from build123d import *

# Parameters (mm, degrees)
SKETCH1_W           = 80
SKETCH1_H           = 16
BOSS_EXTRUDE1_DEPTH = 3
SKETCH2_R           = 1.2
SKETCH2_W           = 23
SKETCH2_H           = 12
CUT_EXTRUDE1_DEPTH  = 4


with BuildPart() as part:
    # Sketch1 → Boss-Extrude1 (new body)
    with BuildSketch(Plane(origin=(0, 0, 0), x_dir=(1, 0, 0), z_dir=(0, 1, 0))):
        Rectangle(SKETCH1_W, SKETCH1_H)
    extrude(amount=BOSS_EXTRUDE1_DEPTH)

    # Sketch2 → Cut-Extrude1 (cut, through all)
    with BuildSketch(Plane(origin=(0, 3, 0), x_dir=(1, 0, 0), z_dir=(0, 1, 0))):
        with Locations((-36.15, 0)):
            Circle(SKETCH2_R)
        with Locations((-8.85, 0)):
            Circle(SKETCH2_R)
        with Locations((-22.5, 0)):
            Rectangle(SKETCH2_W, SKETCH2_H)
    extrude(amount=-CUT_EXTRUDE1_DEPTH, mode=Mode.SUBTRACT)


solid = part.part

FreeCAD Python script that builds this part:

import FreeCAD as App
import Part
import Sketcher

V = App.Vector


def add_polygon(sketch, points):
    """Adds a closed chain of lines whose ends are joined by coincident constraints."""
    first, n = sketch.GeometryCount, len(points)
    for a, b in zip(points, points[1:] + points[:1]):
        sketch.addGeometry(Part.LineSegment(App.Vector(*a, 0), App.Vector(*b, 0)), False)
    for i in range(n):
        sketch.addConstraint(Sketcher.Constraint("Coincident", first + i, 2, first + (i + 1) % n, 1))

doc = App.newDocument("Part")
params = doc.addObject("Spreadsheet::Sheet", "Params")
for row, (alias, value) in enumerate([
    ("sketch1_width", "80 mm"),
    ("sketch1_height", "16 mm"),
    ("pad1_length", "3 mm"),
    ("sketch2_diameter", "2.4 mm"),
    ("sketch2_width", "23 mm"),
    ("sketch2_height", "12 mm"),
], start=1):
    params.set(f"A{row}", alias)
    params.set(f"B{row}", "=" + value)
    params.setAlias(f"B{row}", alias)

body = doc.addObject("PartDesign::Body", "Body")

sketch1 = body.newObject("Sketcher::SketchObject", "Sketch")
sketch1.AttachmentSupport = (doc.getObject("XZ_Plane"), [""])
sketch1.MapMode = "FlatFace"
add_polygon(sketch1, [(-40, -8), (-40, 8), (40, 8), (40, -8)])
sketch1.addConstraint([
    Sketcher.Constraint("Vertical", 0),
    Sketcher.Constraint("Horizontal", 1),
    Sketcher.Constraint("Vertical", 2),
    Sketcher.Constraint("Horizontal", 3),
    Sketcher.Constraint("Symmetric", 0, 2, 2, 2, -1, 1),
    Sketcher.Constraint("DistanceX", 1, 1, 1, 2, 80.0),
    Sketcher.Constraint("DistanceY", 0, 1, 0, 2, 16.0),
])
sketch1.setExpression("Constraints[9]", "Params.sketch1_width")
sketch1.setExpression("Constraints[10]", "Params.sketch1_height")
pad1 = body.newObject("PartDesign::Pad", "Pad")
pad1.Profile = sketch1
pad1.setExpression("Length", "Params.pad1_length")
pad1.Reversed = True

sketch2 = body.newObject("Sketcher::SketchObject", "Sketch001")
sketch2.AttachmentSupport = (doc.getObject("XZ_Plane"), [""])
sketch2.MapMode = "FlatFace"
sketch2.AttachmentOffset = App.Placement(V(0, 0, -3), App.Rotation())
sketch2.addGeometry(Part.Circle(V(-36.1, 0, 0), V(0, 0, 1), 1.2), False)
sketch2.addGeometry(Part.Circle(V(-8.8, 0, 0), V(0, 0, 1), 1.2), False)
add_polygon(sketch2, [(-34, -6), (-34, 6), (-11, 6), (-11, -6)])
sketch2.addConstraint([
    Sketcher.Constraint("Vertical", 2),
    Sketcher.Constraint("Horizontal", 3),
    Sketcher.Constraint("Vertical", 4),
    Sketcher.Constraint("Horizontal", 5),
    Sketcher.Constraint("Equal", 0, 1),
    Sketcher.Constraint("PointOnObject", 0, 3, -1),
    Sketcher.Constraint("PointOnObject", 1, 3, -1),
    Sketcher.Constraint("Diameter", 0, 2.4),
    Sketcher.Constraint("DistanceX", 3, 1, 3, 2, 23.0),
    Sketcher.Constraint("DistanceY", 2, 1, 2, 2, 12.0),
    Sketcher.Constraint("DistanceX", 2, 2, -1, 1, 34.0),
    Sketcher.Constraint("DistanceY", -1, 1, 2, 2, 6.0),
    Sketcher.Constraint("DistanceX", 0, 3, 1, 3, 27.3),
    Sketcher.Constraint("DistanceX", 0, 3, -1, 1, 36.15),
])
sketch2.setExpression("Constraints[11]", "Params.sketch2_diameter")
sketch2.setExpression("Constraints[12]", "Params.sketch2_width")
sketch2.setExpression("Constraints[13]", "Params.sketch2_height")
pocket1 = body.newObject("PartDesign::Pocket", "Pocket")
pocket1.Profile = sketch2
pocket1.Type = "ThroughAll"
pocket1.Reversed = True

doc.recompute()
